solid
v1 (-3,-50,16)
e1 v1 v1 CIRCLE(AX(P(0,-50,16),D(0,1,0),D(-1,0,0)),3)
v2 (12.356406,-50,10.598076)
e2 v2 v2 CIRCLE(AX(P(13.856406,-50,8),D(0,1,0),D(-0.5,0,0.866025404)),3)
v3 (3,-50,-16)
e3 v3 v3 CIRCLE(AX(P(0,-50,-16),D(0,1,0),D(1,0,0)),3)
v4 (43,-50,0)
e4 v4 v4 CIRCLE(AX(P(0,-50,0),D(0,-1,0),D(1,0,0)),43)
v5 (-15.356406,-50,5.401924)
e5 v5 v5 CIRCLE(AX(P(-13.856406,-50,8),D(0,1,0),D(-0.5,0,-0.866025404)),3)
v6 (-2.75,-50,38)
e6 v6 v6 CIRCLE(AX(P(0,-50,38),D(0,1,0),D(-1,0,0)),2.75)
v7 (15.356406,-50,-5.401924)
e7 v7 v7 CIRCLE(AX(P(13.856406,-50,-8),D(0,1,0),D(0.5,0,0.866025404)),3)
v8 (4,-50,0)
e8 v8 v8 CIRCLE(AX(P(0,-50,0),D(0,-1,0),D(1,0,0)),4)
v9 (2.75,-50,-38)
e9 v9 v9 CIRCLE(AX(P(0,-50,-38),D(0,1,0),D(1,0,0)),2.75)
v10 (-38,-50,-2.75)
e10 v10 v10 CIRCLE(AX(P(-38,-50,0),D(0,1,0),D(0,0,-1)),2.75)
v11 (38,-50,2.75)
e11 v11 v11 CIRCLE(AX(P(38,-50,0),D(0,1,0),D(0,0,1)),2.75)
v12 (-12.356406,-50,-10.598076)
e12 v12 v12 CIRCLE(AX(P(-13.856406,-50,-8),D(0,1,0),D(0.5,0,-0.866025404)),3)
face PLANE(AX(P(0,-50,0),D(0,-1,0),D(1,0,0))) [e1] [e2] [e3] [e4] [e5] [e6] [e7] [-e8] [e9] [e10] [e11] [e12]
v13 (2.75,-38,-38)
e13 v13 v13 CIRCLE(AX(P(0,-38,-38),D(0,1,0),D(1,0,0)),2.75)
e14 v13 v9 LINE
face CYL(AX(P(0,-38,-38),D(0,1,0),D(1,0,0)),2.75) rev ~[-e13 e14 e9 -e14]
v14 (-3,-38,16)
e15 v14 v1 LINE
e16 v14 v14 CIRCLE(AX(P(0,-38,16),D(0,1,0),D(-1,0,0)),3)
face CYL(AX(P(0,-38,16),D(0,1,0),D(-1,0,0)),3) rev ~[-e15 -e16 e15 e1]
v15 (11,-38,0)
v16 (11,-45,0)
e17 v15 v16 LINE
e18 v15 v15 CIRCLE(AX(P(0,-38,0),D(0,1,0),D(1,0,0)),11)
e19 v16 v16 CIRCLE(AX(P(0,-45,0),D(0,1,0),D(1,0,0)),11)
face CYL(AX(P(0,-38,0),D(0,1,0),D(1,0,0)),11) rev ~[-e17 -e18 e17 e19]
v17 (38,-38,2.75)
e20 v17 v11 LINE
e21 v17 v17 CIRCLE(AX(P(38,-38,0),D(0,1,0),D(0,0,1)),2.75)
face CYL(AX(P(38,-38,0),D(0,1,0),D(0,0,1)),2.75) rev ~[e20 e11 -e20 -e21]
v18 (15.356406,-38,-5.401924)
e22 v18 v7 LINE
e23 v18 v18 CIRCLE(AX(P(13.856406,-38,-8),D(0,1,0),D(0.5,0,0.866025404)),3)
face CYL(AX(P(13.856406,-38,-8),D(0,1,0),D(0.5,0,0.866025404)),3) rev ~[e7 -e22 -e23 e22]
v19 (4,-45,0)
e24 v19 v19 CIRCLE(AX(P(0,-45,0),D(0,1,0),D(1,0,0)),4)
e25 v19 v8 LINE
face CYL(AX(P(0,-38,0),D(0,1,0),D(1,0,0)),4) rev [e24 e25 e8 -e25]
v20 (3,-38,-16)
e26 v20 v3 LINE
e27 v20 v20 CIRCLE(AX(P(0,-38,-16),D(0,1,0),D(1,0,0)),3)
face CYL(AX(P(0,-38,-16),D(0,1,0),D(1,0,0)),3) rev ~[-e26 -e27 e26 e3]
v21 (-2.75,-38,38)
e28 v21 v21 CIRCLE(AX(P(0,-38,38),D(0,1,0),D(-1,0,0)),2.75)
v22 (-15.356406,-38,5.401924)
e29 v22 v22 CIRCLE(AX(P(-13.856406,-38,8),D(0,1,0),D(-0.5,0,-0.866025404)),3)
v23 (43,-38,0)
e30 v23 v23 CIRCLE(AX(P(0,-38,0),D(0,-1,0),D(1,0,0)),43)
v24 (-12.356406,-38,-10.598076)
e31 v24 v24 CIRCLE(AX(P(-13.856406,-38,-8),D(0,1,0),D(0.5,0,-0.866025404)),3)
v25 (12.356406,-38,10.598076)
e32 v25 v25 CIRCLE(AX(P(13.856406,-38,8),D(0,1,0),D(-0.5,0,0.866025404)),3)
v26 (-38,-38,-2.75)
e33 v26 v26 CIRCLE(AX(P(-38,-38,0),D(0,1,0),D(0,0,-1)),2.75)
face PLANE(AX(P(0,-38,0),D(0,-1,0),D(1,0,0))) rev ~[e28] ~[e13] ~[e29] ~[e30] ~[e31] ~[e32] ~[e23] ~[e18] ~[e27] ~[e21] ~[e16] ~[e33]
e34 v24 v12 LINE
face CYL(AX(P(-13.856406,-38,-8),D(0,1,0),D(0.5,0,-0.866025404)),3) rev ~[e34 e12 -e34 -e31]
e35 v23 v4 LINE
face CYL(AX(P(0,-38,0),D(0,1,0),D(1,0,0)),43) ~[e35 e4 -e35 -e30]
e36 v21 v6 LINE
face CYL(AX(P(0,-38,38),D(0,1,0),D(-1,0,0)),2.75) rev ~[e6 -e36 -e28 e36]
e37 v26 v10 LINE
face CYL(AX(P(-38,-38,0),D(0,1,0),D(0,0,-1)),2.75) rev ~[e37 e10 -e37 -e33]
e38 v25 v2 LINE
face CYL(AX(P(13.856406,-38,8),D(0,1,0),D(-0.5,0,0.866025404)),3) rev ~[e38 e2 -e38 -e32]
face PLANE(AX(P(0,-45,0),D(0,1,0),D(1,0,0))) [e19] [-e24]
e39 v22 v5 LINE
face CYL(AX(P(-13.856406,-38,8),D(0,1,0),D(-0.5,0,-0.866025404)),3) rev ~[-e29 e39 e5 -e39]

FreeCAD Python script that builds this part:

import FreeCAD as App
import Part
import Sketcher
from FreeCAD import Vector
Q = App.Units.Quantity

doc = App.newDocument("Part")
body = doc.addObject("PartDesign::Body", "Body")

# Sketch on XZ plane
sketch1 = body.newObject("Sketcher::SketchObject", "Sketch")
sketch1.AttachmentSupport = (doc.getObject("XZ_Plane"), [""])
sketch1.MapMode = "FlatFace"
sketch1.AttachmentOffset = App.Placement(Vector(0, 0, 8), App.Rotation())
sketch1.addGeometry([
    Part.Circle(Vector(0, 0, 0), Vector(0, 0, 1), 43),
    Part.Circle(Vector(0, 0, 0), Vector(0, 0, 1), 4),
], False)
sketch1.addConstraint([
    Sketcher.Constraint("Coincident", 0, 3, -1, 1),
    Sketcher.Constraint("Coincident", 1, 3, -1, 1),
    Sketcher.Constraint("Diameter", 0, Q("86 mm")),
    Sketcher.Constraint("Diameter", 1, Q("8 mm")),
])
pad1 = body.newObject("PartDesign::Pad", "Pad")
pad1.Profile = sketch1
pad1.Length = 12

# Sketch on XZ plane
sketch2 = body.newObject("Sketcher::SketchObject", "Sketch001")
sketch2.AttachmentSupport = (doc.getObject("XZ_Plane"), [""])
sketch2.MapMode = "FlatFace"
sketch2.AttachmentOffset = App.Placement(Vector(0, 0, 8), App.Rotation())
sketch2.addGeometry(Part.Circle(Vector(0, 0, 0), Vector(0, 0, 1), 11), False)
sketch2.addConstraint([
    Sketcher.Constraint("Coincident", 0, 3, -1, 1),
    Sketcher.Constraint("Diameter", 0, Q("22 mm")),
])
pocket1 = body.newObject("PartDesign::Pocket", "Pocket")
pocket1.Profile = sketch2
pocket1.Length = 7
pocket1.Reversed = True

# Sketch on XZ plane
sketch3 = body.newObject("Sketcher::SketchObject", "Sketch002")
sketch3.AttachmentSupport = (doc.getObject("XZ_Plane"), [""])
sketch3.MapMode = "FlatFace"
sketch3.AttachmentOffset = App.Placement(Vector(0, 0, 8), App.Rotation())
sketch3.addGeometry(Part.Circle(Vector(0, -16, 0), Vector(0, 0, 1), 3), False)
sketch3.addConstraint([
    Sketcher.Constraint("PointOnObject", 0, 3, -2),
    Sketcher.Constraint("Diameter", 0, Q("6 mm")),
    Sketcher.Constraint("DistanceY", 0, 3, -1, 1, Q("16 mm")),
])
pocket2 = body.newObject("PartDesign::Pocket", "Pocket001")
pocket2.Profile = sketch3
pocket2.Type = "ThroughAll"
pocket2.Reversed = True
doc.recompute()

polarpattern = body.newObject("PartDesign::PolarPattern", "PolarPattern")
polarpattern.Originals = [pocket2]
polarpattern.Axis = (doc.getObject("Y_Axis"), [""])
polarpattern.Angle = 360
polarpattern.Occurrences = 6
body.Tip = polarpattern

# Sketch on XZ plane
sketch4 = body.newObject("Sketcher::SketchObject", "Sketch003")
sketch4.AttachmentSupport = (doc.getObject("XZ_Plane"), [""])
sketch4.MapMode = "FlatFace"
sketch4.AttachmentOffset = App.Placement(Vector(0, 0, 8), App.Rotation())
sketch4.addGeometry(Part.Circle(Vector(0, -38, 0), Vector(0, 0, 1), 2.8), False)
sketch4.addConstraint([
    Sketcher.Constraint("PointOnObject", 0, 3, -2),
    Sketcher.Constraint("Diameter", 0, Q("5.5 mm")),
    Sketcher.Constraint("DistanceY", 0, 3, -1, 1, Q("38 mm")),
])
pocket3 = body.newObject("PartDesign::Pocket", "Pocket002")
pocket3.Profile = sketch4
pocket3.Type = "ThroughAll"
pocket3.Reversed = True
doc.recompute()

polarpattern2 = body.newObject("PartDesign::PolarPattern", "PolarPattern001")
polarpattern2.Originals = [pocket3]
polarpattern2.Axis = (doc.getObject("Y_Axis"), [""])
polarpattern2.Angle = 360
polarpattern2.Occurrences = 4
body.Tip = polarpattern2
body2 = doc.addObject("PartDesign::Body", "Body001")
doc.recompute()

body.Placement = App.Placement(Vector(0, -30, 0), App.Rotation(Vector(0, 0, 1), 0))
boolean = body2.newObject("PartDesign::Boolean", "Boolean")
boolean.Type = "Fuse"
boolean.addObjects([body])

doc.recompute()
